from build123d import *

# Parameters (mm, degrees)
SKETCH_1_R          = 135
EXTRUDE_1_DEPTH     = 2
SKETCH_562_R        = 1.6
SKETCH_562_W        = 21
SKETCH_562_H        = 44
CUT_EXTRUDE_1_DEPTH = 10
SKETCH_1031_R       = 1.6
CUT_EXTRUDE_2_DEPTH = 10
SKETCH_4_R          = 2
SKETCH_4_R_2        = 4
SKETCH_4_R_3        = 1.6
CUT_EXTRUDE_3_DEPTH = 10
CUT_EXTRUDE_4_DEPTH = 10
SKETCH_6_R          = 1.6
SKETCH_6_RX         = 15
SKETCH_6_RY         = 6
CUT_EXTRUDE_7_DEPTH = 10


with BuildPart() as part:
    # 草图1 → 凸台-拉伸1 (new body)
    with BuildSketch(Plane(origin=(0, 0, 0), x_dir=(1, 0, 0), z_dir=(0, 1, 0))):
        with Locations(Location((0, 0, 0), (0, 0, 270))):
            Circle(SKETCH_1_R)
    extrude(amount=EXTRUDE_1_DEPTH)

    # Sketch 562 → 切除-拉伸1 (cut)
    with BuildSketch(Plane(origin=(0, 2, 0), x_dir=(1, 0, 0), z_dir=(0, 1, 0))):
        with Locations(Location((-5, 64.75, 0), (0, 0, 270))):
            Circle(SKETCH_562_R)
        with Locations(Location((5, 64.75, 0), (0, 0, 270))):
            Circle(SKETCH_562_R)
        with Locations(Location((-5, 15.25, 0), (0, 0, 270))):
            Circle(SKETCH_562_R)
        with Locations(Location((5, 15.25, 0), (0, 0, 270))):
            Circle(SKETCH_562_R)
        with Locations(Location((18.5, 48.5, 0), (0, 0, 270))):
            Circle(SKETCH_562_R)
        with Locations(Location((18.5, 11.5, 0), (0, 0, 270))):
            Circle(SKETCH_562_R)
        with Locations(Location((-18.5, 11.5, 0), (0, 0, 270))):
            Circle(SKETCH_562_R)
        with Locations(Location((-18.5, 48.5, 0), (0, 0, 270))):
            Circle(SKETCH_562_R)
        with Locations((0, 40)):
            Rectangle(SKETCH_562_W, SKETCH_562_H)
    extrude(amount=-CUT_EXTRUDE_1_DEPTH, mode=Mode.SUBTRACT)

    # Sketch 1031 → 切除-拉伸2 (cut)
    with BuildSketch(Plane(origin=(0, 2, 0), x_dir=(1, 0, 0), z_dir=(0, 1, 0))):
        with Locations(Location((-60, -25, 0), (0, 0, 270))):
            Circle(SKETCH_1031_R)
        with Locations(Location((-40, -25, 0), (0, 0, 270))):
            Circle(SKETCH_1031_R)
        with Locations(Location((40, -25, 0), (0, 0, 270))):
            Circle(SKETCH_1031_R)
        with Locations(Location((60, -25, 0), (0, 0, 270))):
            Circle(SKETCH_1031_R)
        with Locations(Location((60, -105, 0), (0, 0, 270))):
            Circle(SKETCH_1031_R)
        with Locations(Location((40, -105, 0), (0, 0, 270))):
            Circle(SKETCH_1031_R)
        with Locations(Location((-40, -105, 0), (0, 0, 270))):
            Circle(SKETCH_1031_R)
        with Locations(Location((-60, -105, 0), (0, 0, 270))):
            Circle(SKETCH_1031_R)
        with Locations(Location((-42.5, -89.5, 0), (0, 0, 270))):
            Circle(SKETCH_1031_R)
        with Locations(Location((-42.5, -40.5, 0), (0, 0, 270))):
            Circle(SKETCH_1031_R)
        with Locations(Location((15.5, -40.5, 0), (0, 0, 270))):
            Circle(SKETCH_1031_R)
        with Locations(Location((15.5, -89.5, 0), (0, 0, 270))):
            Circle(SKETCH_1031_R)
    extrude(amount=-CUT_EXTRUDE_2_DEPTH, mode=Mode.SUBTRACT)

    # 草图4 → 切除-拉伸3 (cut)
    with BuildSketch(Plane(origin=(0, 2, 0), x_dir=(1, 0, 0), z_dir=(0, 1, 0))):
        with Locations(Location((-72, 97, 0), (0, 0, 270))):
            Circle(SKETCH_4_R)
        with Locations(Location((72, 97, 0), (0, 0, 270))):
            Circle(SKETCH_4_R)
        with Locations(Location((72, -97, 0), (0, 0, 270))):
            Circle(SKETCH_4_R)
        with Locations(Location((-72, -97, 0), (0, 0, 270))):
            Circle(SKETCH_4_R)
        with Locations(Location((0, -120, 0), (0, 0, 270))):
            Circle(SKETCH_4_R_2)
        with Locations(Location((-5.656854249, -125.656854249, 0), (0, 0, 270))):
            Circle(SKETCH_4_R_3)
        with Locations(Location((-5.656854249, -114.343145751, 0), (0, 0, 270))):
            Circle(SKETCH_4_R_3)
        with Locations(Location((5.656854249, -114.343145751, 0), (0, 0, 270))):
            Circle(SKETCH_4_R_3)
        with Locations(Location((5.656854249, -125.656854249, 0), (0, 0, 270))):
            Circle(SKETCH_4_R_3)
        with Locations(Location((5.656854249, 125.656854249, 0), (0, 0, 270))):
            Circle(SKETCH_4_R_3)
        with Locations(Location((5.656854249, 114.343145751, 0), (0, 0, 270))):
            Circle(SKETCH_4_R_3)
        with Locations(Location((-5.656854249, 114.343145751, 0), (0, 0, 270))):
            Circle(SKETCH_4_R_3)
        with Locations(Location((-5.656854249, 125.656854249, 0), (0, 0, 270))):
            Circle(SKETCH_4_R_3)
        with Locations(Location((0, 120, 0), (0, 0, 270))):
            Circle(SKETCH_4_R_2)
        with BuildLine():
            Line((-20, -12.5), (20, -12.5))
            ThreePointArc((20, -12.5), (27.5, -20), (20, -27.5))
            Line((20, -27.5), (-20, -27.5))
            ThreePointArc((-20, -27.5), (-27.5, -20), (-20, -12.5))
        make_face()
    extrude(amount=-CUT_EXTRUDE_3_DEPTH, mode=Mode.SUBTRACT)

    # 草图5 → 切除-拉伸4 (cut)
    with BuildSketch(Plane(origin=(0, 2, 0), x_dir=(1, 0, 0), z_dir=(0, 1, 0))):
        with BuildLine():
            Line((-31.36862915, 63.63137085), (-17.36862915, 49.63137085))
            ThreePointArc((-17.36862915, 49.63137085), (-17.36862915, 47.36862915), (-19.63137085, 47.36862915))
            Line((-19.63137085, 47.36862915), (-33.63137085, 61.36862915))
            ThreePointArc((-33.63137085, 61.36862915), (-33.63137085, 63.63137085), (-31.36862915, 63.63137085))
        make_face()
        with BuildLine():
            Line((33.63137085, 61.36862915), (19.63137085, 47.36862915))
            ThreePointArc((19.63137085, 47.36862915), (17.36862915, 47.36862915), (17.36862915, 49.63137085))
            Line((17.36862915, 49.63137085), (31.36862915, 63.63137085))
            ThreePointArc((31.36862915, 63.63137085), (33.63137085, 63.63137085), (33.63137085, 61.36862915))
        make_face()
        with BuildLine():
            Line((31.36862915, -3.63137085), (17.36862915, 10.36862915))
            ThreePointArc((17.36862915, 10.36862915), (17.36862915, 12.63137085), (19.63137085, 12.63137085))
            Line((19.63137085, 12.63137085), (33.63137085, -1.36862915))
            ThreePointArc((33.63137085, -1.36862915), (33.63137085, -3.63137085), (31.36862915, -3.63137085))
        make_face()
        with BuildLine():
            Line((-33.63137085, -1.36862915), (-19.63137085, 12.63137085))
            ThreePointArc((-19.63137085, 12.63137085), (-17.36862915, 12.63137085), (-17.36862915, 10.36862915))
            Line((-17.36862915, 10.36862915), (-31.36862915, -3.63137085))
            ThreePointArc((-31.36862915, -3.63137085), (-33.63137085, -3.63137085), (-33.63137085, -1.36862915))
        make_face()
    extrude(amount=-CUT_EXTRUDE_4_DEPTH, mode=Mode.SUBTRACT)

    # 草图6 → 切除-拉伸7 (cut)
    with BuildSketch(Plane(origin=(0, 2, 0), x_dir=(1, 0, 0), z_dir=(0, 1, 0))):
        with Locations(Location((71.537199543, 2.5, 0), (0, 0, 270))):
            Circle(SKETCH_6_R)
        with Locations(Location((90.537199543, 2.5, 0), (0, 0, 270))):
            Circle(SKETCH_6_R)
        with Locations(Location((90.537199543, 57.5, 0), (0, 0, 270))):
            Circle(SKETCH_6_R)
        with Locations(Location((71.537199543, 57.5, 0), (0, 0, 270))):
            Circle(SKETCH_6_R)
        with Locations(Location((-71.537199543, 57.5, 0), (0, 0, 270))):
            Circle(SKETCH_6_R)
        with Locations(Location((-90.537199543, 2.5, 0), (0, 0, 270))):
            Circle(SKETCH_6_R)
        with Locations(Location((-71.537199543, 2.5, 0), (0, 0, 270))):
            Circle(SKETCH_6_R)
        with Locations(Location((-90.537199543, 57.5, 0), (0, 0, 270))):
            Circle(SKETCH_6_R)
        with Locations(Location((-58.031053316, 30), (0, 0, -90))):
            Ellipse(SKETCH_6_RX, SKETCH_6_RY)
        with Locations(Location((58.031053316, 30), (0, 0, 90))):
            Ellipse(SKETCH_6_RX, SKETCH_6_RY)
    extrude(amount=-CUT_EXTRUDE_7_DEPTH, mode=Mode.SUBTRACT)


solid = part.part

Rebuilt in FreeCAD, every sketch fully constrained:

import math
import FreeCAD as App
import Part
import Sketcher
from FreeCAD import Vector

doc = App.newDocument("Part")
params = doc.addObject("Spreadsheet::Sheet", "Params")
for row, (alias, value) in enumerate([
    ("sketch1_diameter", "270 mm"),
    ("pad1_length", "2 mm"),
    ("sketch2_diameter", "3.2 mm"),
    ("sketch2_width", "21 mm"),
    ("sketch2_height", "44 mm"),
    ("pocket1_length", "10 mm"),
    ("sketch3_diameter", "3.2 mm"),
    ("pocket2_length", "10 mm"),
    ("sketch4_diameter", "4 mm"),
    ("sketch4_diameter2", "8 mm"),
    ("sketch4_diameter3", "3.2 mm"),
    ("sketch4_radius", "7.5 mm"),
    ("sketch4_width", "40 mm"),
    ("pocket3_length", "10 mm"),
    ("sketch5_radius", "1.6 mm"),
    ("pocket4_length", "10 mm"),
    ("sketch6_diameter", "3.2 mm"),
    ("pocket5_length", "10 mm"),
], start=1):
    params.set(f"A{row}", alias)
    params.set(f"B{row}", "=" + value)
    params.setAlias(f"B{row}", alias)

body = doc.addObject("PartDesign::Body", "Body")

# Sketch on XZ plane
sketch1 = body.newObject("Sketcher::SketchObject", "Sketch")
sketch1.AttachmentSupport = (doc.getObject("XZ_Plane"), [""])
sketch1.MapMode = "FlatFace"
sketch1.addGeometry(Part.Circle(Vector(0, 0, 0), Vector(0, 0, 1), 135), False)
sketch1.addConstraint([
    Sketcher.Constraint("Coincident", 0, 3, -1, 1),
    Sketcher.Constraint("Diameter", 0, 270.0),
])
sketch1.setExpression("Constraints[1]", "Params.sketch1_diameter")
pad1 = body.newObject("PartDesign::Pad", "Pad")
pad1.Profile = sketch1
pad1.setExpression("Length", "Params.pad1_length")
pad1.Reversed = True

# Sketch on XZ plane
sketch2 = body.newObject("Sketcher::SketchObject", "Sketch001")
sketch2.AttachmentSupport = (doc.getObject("XZ_Plane"), [""])
sketch2.MapMode = "FlatFace"
sketch2.AttachmentOffset = App.Placement(Vector(0, 0, -2), App.Rotation())
sketch2.addGeometry([
    Part.Circle(Vector(-5, -64.75, 0), Vector(0, 0, 1), 1.6),  # 0
    Part.Circle(Vector(5, -64.75, 0), Vector(0, 0, 1), 1.6),  # 1
    Part.Circle(Vector(-5, -15.25, 0), Vector(0, 0, 1), 1.6),  # 2
    Part.Circle(Vector(5, -15.25, 0), Vector(0, 0, 1), 1.6),  # 3
    Part.Circle(Vector(18.5, -48.5, 0), Vector(0, 0, 1), 1.6),  # 4
    Part.Circle(Vector(18.5, -11.5, 0), Vector(0, 0, 1), 1.6),  # 5
    Part.Circle(Vector(-18.5, -11.5, 0), Vector(0, 0, 1), 1.6),  # 6
    Part.Circle(Vector(-18.5, -48.5, 0), Vector(0, 0, 1), 1.6),  # 7
    Part.LineSegment(Vector(-10.5, -62, 0), Vector(-10.5, -18, 0)),  # 8
    Part.LineSegment(Vector(-10.5, -18, 0), Vector(10.5, -18, 0)),  # 9
    Part.LineSegment(Vector(10.5, -18, 0), Vector(10.5, -62, 0)),  # 10
    Part.LineSegment(Vector(10.5, -62, 0), Vector(-10.5, -62, 0)),  # 11
], False)
sketch2.addConstraint([
    Sketcher.Constraint("Coincident", 8, 2, 9, 1),
    Sketcher.Constraint("Coincident", 9, 2, 10, 1),
    Sketcher.Constraint("Coincident", 10, 2, 11, 1),
    Sketcher.Constraint("Coincident", 11, 2, 8, 1),
    Sketcher.Constraint("Vertical", 8),
    Sketcher.Constraint("Horizontal", 9),
    Sketcher.Constraint("Vertical", 10),
    Sketcher.Constraint("Horizontal", 11),
    Sketcher.Constraint("Equal", 0, 1),
    Sketcher.Constraint("Equal", 1, 2),
    Sketcher.Constraint("Equal", 2, 3),
    Sketcher.Constraint("Equal", 3, 4),
    Sketcher.Constraint("Equal", 4, 5),
    Sketcher.Constraint("Equal", 5, 6),
    Sketcher.Constraint("Equal", 6, 7),
    Sketcher.Constraint("Symmetric", 0, 3, 1, 3, -2),
    Sketcher.Constraint("Symmetric", 2, 3, 3, 3, -2),
    Sketcher.Constraint("Symmetric", 5, 3, 6, 3, -2),
    Sketcher.Constraint("Symmetric", 4, 3, 7, 3, -2),
    Sketcher.Constraint("Vertical", 0, 3, 2, 3),
    Sketcher.Constraint("Vertical", 4, 3, 5, 3),
    Sketcher.Constraint("Diameter", 0, 3.2),
    Sketcher.Constraint("DistanceX", 9, 1, 9, 2, 21.0),
    Sketcher.Constraint("DistanceY", 8, 1, 8, 2, 44.0),
    Sketcher.Constraint("DistanceX", 0, 3, -1, 1, 5.0),
    Sketcher.Constraint("DistanceY", 8, 2, -1, 1, 18.0),
    Sketcher.Constraint("DistanceY", 4, 3, 5, 3, 37.0),
    Sketcher.Constraint("DistanceX", 6, 3, 5, 3, 37.0),
    Sketcher.Constraint("DistanceX", 6, 3, 8, 2, 8.0),
    Sketcher.Constraint("DistanceY", 4, 3, -1, 1, 48.5),
    Sketcher.Constraint("DistanceY", 0, 3, 2, 3, 49.5),
    Sketcher.Constraint("DistanceY", 0, 3, -1, 1, 64.75),
])
sketch2.setExpression("Constraints[21]", "Params.sketch2_diameter")
sketch2.setExpression("Constraints[22]", "Params.sketch2_width")
sketch2.setExpression("Constraints[23]", "Params.sketch2_height")
pocket1 = body.newObject("PartDesign::Pocket", "Pocket")
pocket1.Profile = sketch2
pocket1.setExpression("Length", "Params.pocket1_length")
pocket1.Reversed = True

# Sketch on XZ plane
sketch3 = body.newObject("Sketcher::SketchObject", "Sketch002")
sketch3.AttachmentSupport = (doc.getObject("XZ_Plane"), [""])
sketch3.MapMode = "FlatFace"
sketch3.AttachmentOffset = App.Placement(Vector(0, 0, -2), App.Rotation())
sketch3.addGeometry([
    Part.Circle(Vector(-60, 25, 0), Vector(0, 0, 1), 1.6),  # 0
    Part.Circle(Vector(-40, 25, 0), Vector(0, 0, 1), 1.6),  # 1
    Part.Circle(Vector(40, 25, 0), Vector(0, 0, 1), 1.6),  # 2
    Part.Circle(Vector(60, 25, 0), Vector(0, 0, 1), 1.6),  # 3
    Part.Circle(Vector(60, 105, 0), Vector(0, 0, 1), 1.6),  # 4
    Part.Circle(Vector(40, 105, 0), Vector(0, 0, 1), 1.6),  # 5
    Part.Circle(Vector(-40, 105, 0), Vector(0, 0, 1), 1.6),  # 6
    Part.Circle(Vector(-60, 105, 0), Vector(0, 0, 1), 1.6),  # 7
    Part.Circle(Vector(-42.5, 89.5, 0), Vector(0, 0, 1), 1.6),  # 8
    Part.Circle(Vector(-42.5, 40.5, 0), Vector(0, 0, 1), 1.6),  # 9
    Part.Circle(Vector(15.5, 40.5, 0), Vector(0, 0, 1), 1.6),  # 10
    Part.Circle(Vector(15.5, 89.5, 0), Vector(0, 0, 1), 1.6),  # 11
], False)
sketch3.addConstraint([
    Sketcher.Constraint("Equal", 0, 1),
    Sketcher.Constraint("Equal", 1, 2),
    Sketcher.Constraint("Equal", 2, 3),
    Sketcher.Constraint("Equal", 3, 4),
    Sketcher.Constraint("Equal", 4, 5),
    Sketcher.Constraint("Equal", 5, 6),
    Sketcher.Constraint("Equal", 6, 7),
    Sketcher.Constraint("Equal", 7, 8),
    Sketcher.Constraint("Equal", 8, 9),
    Sketcher.Constraint("Equal", 9, 10),
    Sketcher.Constraint("Equal", 10, 11),
    Sketcher.Constraint("Symmetric", 1, 3, 2, 3, -2),
    Sketcher.Constraint("Symmetric", 0, 3, 3, 3, -2),
    Sketcher.Constraint("Symmetric", 5, 3, 6, 3, -2),
    Sketcher.Constraint("Symmetric", 4, 3, 7, 3, -2),
    Sketcher.Constraint("Horizontal", 0, 3, 1, 3),
    Sketcher.Constraint("Horizontal", 4, 3, 5, 3),
    Sketcher.Constraint("Horizontal", 9, 3, 10, 3),
    Sketcher.Constraint("Horizontal", 8, 3, 11, 3),
    Sketcher.Constraint("Vertical", 3, 3, 4, 3),
    Sketcher.Constraint("Vertical", 2, 3, 5, 3),
    Sketcher.Constraint("Vertical", 8, 3, 9, 3),
    Sketcher.Constraint("Vertical", 10, 3, 11, 3),
    Sketcher.Constraint("Diameter", 0, 3.2),
    Sketcher.Constraint("DistanceX", 0, 3, -1, 1, 60.0),
    Sketcher.Constraint("DistanceY", -1, 1, 0, 3, 25.0),
    Sketcher.Constraint("DistanceX", 1, 3, -1, 1, 40.0),
    Sketcher.Constraint("DistanceY", -1, 1, 4, 3, 105.0),
    Sketcher.Constraint("DistanceY", 9, 3, 8, 3, 49.0),
    Sketcher.Constraint("DistanceX", 9, 3, 10, 3, 58.0),
    Sketcher.Constraint("DistanceX", 8, 3, -1, 1, 42.5),
    Sketcher.Constraint("DistanceY", -1, 1, 8, 3, 89.5),
])
sketch3.setExpression("Constraints[23]", "Params.sketch3_diameter")
pocket2 = body.newObject("PartDesign::Pocket", "Pocket001")
pocket2.Profile = sketch3
pocket2.setExpression("Length", "Params.pocket2_length")
pocket2.Reversed = True

# Sketch on XZ plane
sketch4 = body.newObject("Sketcher::SketchObject", "Sketch003")
sketch4.AttachmentSupport = (doc.getObject("XZ_Plane"), [""])
sketch4.MapMode = "FlatFace"
sketch4.AttachmentOffset = App.Placement(Vector(0, 0, -2), App.Rotation())
sketch4.addGeometry([
    Part.Circle(Vector(-72, -97, 0), Vector(0, 0, 1), 2),  # 0
    Part.Circle(Vector(72, -97, 0), Vector(0, 0, 1), 2),  # 1
    Part.Circle(Vector(72, 97, 0), Vector(0, 0, 1), 2),  # 2
    Part.Circle(Vector(-72, 97, 0), Vector(0, 0, 1), 2),  # 3
    Part.Circle(Vector(0, 120, 0), Vector(0, 0, 1), 4),  # 4
    Part.Circle(Vector(-5.656854, 125.656854, 0), Vector(0, 0, 1), 1.6),  # 5
    Part.Circle(Vector(-5.656854, 114.343146, 0), Vector(0, 0, 1), 1.6),  # 6
    Part.Circle(Vector(5.656854, 114.343146, 0), Vector(0, 0, 1), 1.6),  # 7
    Part.Circle(Vector(5.656854, 125.656854, 0), Vector(0, 0, 1), 1.6),  # 8
    Part.Circle(Vector(5.656854, -125.656854, 0), Vector(0, 0, 1), 1.6),  # 9
    Part.Circle(Vector(5.656854, -114.343146, 0), Vector(0, 0, 1), 1.6),  # 10
    Part.Circle(Vector(-5.656854, -114.343146, 0), Vector(0, 0, 1), 1.6),  # 11
    Part.Circle(Vector(-5.656854, -125.656854, 0), Vector(0, 0, 1), 1.6),  # 12
    Part.Circle(Vector(0, -120, 0), Vector(0, 0, 1), 4),  # 13
    Part.LineSegment(Vector(20, 12.5, 0), Vector(-20, 12.5, 0)),  # 14
    Part.ArcOfCircle(Part.Circle(Vector(-20, 20, 0), Vector(0, 0, 1), 7.5), math.radians(90), math.radians(270)),  # 15
    Part.LineSegment(Vector(-20, 27.5, 0), Vector(20, 27.5, 0)),  # 16
    Part.ArcOfCircle(Part.Circle(Vector(20, 20, 0), Vector(0, 0, 1), 7.5), math.radians(-90), math.radians(90)),  # 17
], False)
sketch4.addConstraint([
    Sketcher.Constraint("Tangent", 14, 2, 15, 2),
    Sketcher.Constraint("Tangent", 15, 1, 16, 1),
    Sketcher.Constraint("Tangent", 16, 2, 17, 2),
    Sketcher.Constraint("Tangent", 17, 1, 14, 1),
    Sketcher.Constraint("Horizontal", 14),
    Sketcher.Constraint("Horizontal", 16),
    Sketcher.Constraint("Equal", 0, 1),
    Sketcher.Constraint("Equal", 1, 2),
    Sketcher.Constraint("Equal", 2, 3),
    Sketcher.Constraint("Equal", 5, 6),
    Sketcher.Constraint("Equal", 6, 7),
    Sketcher.Constraint("Equal", 7, 8),
    Sketcher.Constraint("Equal", 8, 9),
    Sketcher.Constraint("Equal", 9, 10),
    Sketcher.Constraint("Equal", 10, 11),
    Sketcher.Constraint("Equal", 11, 12),
    Sketcher.Constraint("Equal", 4, 13),
    Sketcher.Constraint("Symmetric", 0, 3, 2, 3, -1, 1),
    Sketcher.Constraint("Symmetric", 1, 3, 3, 3, -1, 1),
    Sketcher.Constraint("Symmetric", 5, 3, 9, 3, -1, 1),
    Sketcher.Constraint("Symmetric", 6, 3, 10, 3, -1, 1),
    Sketcher.Constraint("Symmetric", 7, 3, 11, 3, -1, 1),
    Sketcher.Constraint("Symmetric", 8, 3, 12, 3, -1, 1),
    Sketcher.Constraint("Symmetric", 4, 3, 13, 3, -1, 1),
    Sketcher.Constraint("Symmetric", 0, 3, 1, 3, -2),
    Sketcher.Constraint("Symmetric", 6, 3, 7, 3, -2),
    Sketcher.Constraint("Symmetric", 5, 3, 8, 3, -2),
    Sketcher.Constraint("PointOnObject", 4, 3, -2),
    Sketcher.Constraint("Vertical", 5, 3, 6, 3),
    Sketcher.Constraint("Diameter", 0, 4.0),
    Sketcher.Constraint("Diameter", 4, 8.0),
    Sketcher.Constraint("Diameter", 5, 3.2),
    Sketcher.Constraint("Radius", 15, 7.5),
    Sketcher.Constraint("DistanceX", 14, 2, 14, 1, 40.0),
    Sketcher.Constraint("DistanceX", 0, 3, -1, 1, 72.0),
    Sketcher.Constraint("DistanceY", 0, 3, -1, 1, 97.0),
    Sketcher.Constraint("DistanceY", -1, 1, 4, 3, 120.0),
    Sketcher.Constraint("DistanceX", 15, 3, -1, 1, 20.0),
    Sketcher.Constraint("DistanceY", -1, 1, 15, 3, 20.0),
    Sketcher.Constraint("DistanceY", 9, 3, 7, 3, 240.0),
    Sketcher.Constraint("DistanceY", 6, 3, 5, 3, 11.313708),
    Sketcher.Constraint("DistanceX", 6, 3, 7, 3, 11.313708),
])
sketch4.setExpression("Constraints[29]", "Params.sketch4_diameter")
sketch4.setExpression("Constraints[30]", "Params.sketch4_diameter2")
sketch4.setExpression("Constraints[31]", "Params.sketch4_diameter3")
sketch4.setExpression("Constraints[32]", "Params.sketch4_radius")
sketch4.setExpression("Constraints[33]", "Params.sketch4_width")
pocket3 = body.newObject("PartDesign::Pocket", "Pocket002")
pocket3.Profile = sketch4
pocket3.setExpression("Length", "Params.pocket3_length")
pocket3.Reversed = True

# Sketch on XZ plane
sketch5 = body.newObject("Sketcher::SketchObject", "Sketch004")
sketch5.AttachmentSupport = (doc.getObject("XZ_Plane"), [""])
sketch5.MapMode = "FlatFace"
sketch5.AttachmentOffset = App.Placement(Vector(0, 0, -2), App.Rotation())
sketch5.addGeometry([
    Part.LineSegment(Vector(-17.368629, -49.631371, 0), Vector(-31.368629, -63.631371, 0)),  # 0
    Part.ArcOfCircle(Part.Circle(Vector(-32.5, -62.5, 0), Vector(0, 0, 1), 1.6), math.radians(135), math.radians(315)),  # 1
    Part.LineSegment(Vector(-33.631371, -61.368629, 0), Vector(-19.631371, -47.368629, 0)),  # 2
    Part.ArcOfCircle(Part.Circle(Vector(-18.5, -48.5, 0), Vector(0, 0, 1), 1.6), math.radians(-45), math.radians(135)),  # 3
    Part.LineSegment(Vector(19.631371, -47.368629, 0), Vector(33.631371, -61.368629, 0)),  # 4
    Part.ArcOfCircle(Part.Circle(Vector(32.5, -62.5, 0), Vector(0, 0, 1), 1.6), math.radians(-135), math.radians(45)),  # 5
    Part.LineSegment(Vector(31.368629, -63.631371, 0), Vector(17.368629, -49.631371, 0)),  # 6
    Part.ArcOfCircle(Part.Circle(Vector(18.5, -48.5, 0), Vector(0, 0, 1), 1.6), math.radians(45), math.radians(225)),  # 7
    Part.LineSegment(Vector(17.368629, -10.368629, 0), Vector(31.368629, 3.631371, 0)),  # 8
    Part.ArcOfCircle(Part.Circle(Vector(32.5, 2.5, 0), Vector(0, 0, 1), 1.6), math.radians(-45), math.radians(135)),  # 9
    Part.LineSegment(Vector(33.631371, 1.368629, 0), Vector(19.631371, -12.631371, 0)),  # 10
    Part.ArcOfCircle(Part.Circle(Vector(18.5, -11.5, 0), Vector(0, 0, 1), 1.6), math.radians(135), math.radians(315)),  # 11
    Part.LineSegment(Vector(-19.631371, -12.631371, 0), Vector(-33.631371, 1.368629, 0)),  # 12
    Part.ArcOfCircle(Part.Circle(Vector(-32.5, 2.5, 0), Vector(0, 0, 1), 1.6), math.radians(45), math.radians(225)),  # 13
    Part.LineSegment(Vector(-31.368629, 3.631371, 0), Vector(-17.368629, -10.368629, 0)),  # 14
    Part.ArcOfCircle(Part.Circle(Vector(-18.5, -11.5, 0), Vector(0, 0, 1), 1.6), math.radians(-135), math.radians(45)),  # 15
], False)
sketch5.addConstraint([
    Sketcher.Constraint("Tangent", 0, 2, 1, 2),
    Sketcher.Constraint("Tangent", 1, 1, 2, 1),
    Sketcher.Constraint("Tangent", 2, 2, 3, 2),
    Sketcher.Constraint("Tangent", 3, 1, 0, 1),
    Sketcher.Constraint("Tangent", 4, 2, 5, 2),
    Sketcher.Constraint("Tangent", 5, 1, 6, 1),
    Sketcher.Constraint("Tangent", 6, 2, 7, 2),
    Sketcher.Constraint("Tangent", 7, 1, 4, 1),
    Sketcher.Constraint("Tangent", 8, 2, 9, 2),
    Sketcher.Constraint("Tangent", 9, 1, 10, 1),
    Sketcher.Constraint("Tangent", 10, 2, 11, 2),
    Sketcher.Constraint("Tangent", 11, 1, 8, 1),
    Sketcher.Constraint("Tangent", 12, 2, 13, 2),
    Sketcher.Constraint("Tangent", 13, 1, 14, 1),
    Sketcher.Constraint("Tangent", 14, 2, 15, 2),
    Sketcher.Constraint("Tangent", 15, 1, 12, 1),
    Sketcher.Constraint("Equal", 1, 3),
    Sketcher.Constraint("Equal", 3, 5),
    Sketcher.Constraint("Equal", 5, 7),
    Sketcher.Constraint("Equal", 7, 9),
    Sketcher.Constraint("Equal", 9, 11),
    Sketcher.Constraint("Equal", 11, 13),
    Sketcher.Constraint("Equal", 13, 15),
    Sketcher.Constraint("Symmetric", 1, 3, 5, 3, -2),
    Sketcher.Constraint("Symmetric", 3, 3, 7, 3, -2),
    Sketcher.Constraint("Symmetric", 9, 3, 13, 3, -2),
    Sketcher.Constraint("Symmetric", 11, 3, 15, 3, -2),
    Sketcher.Constraint("Perpendicular", 2, 4),
    Sketcher.Constraint("Perpendicular", 6, 8),
    Sketcher.Constraint("Vertical", 5, 3, 9, 3),
    Sketcher.Constraint("Vertical", 7, 3, 11, 3),
    Sketcher.Constraint("Radius", 1, 1.6),
    Sketcher.Constraint("DistanceX", 1, 3, 3, 3, 14.0),
    Sketcher.Constraint("DistanceX", 3, 3, 5, 3, 51.0),
    Sketcher.Constraint("DistanceY", 7, 3, 9, 3, 51.0),
    Sketcher.Constraint("DistanceY", 1, 3, -1, 1, 62.5),
])
sketch5.setExpression("Constraints[31]", "Params.sketch5_radius")
pocket4 = body.newObject("PartDesign::Pocket", "Pocket003")
pocket4.Profile = sketch5
pocket4.setExpression("Length", "Params.pocket4_length")
pocket4.Reversed = True

# Sketch on XZ plane
sketch6 = body.newObject("Sketcher::SketchObject", "Sketch005")
sketch6.AttachmentSupport = (doc.getObject("XZ_Plane"), [""])
sketch6.MapMode = "FlatFace"
sketch6.AttachmentOffset = App.Placement(Vector(0, 0, -2), App.Rotation())
sketch6.addGeometry([
    Part.Circle(Vector(71.5372, -2.5, 0), Vector(0, 0, 1), 1.6),  # 0
    Part.Circle(Vector(90.5372, -2.5, 0), Vector(0, 0, 1), 1.6),  # 1
    Part.Circle(Vector(90.5372, -57.5, 0), Vector(0, 0, 1), 1.6),  # 2
    Part.Circle(Vector(71.5372, -57.5, 0), Vector(0, 0, 1), 1.6),  # 3
    Part.Circle(Vector(-71.5372, -57.5, 0), Vector(0, 0, 1), 1.6),  # 4
    Part.Circle(Vector(-90.5372, -2.5, 0), Vector(0, 0, 1), 1.6),  # 5
    Part.Circle(Vector(-71.5372, -2.5, 0), Vector(0, 0, 1), 1.6),  # 6
    Part.Circle(Vector(-90.5372, -57.5, 0), Vector(0, 0, 1), 1.6),  # 7
    Part.Ellipse(Vector(-58.031053, -15, 0), Vector(-64.031053, -30, 0), Vector(-58.031053, -30, 0)),  # 8
    Part.Ellipse(Vector(58.031053, -45, 0), Vector(64.031053, -30, 0), Vector(58.031053, -30, 0)),  # 9
], False)
sketch6.addConstraint([
    Sketcher.Constraint("Block", 8),
    Sketcher.Constraint("Block", 9),
    Sketcher.Constraint("Equal", 0, 1),
    Sketcher.Constraint("Equal", 1, 2),
    Sketcher.Constraint("Equal", 2, 3),
    Sketcher.Constraint("Equal", 3, 4),
    Sketcher.Constraint("Equal", 4, 5),
    Sketcher.Constraint("Equal", 5, 6),
    Sketcher.Constraint("Equal", 6, 7),
    Sketcher.Constraint("Symmetric", 3, 3, 4, 3, -2),
    Sketcher.Constraint("Symmetric", 1, 3, 5, 3, -2),
    Sketcher.Constraint("Symmetric", 0, 3, 6, 3, -2),
    Sketcher.Constraint("Symmetric", 2, 3, 7, 3, -2),
    Sketcher.Constraint("Horizontal", 0, 3, 1, 3),
    Sketcher.Constraint("Horizontal", 2, 3, 3, 3),
    Sketcher.Constraint("Vertical", 1, 3, 2, 3),
    Sketcher.Constraint("Vertical", 0, 3, 3, 3),
    Sketcher.Constraint("Diameter", 0, 3.2),
    Sketcher.Constraint("DistanceX", 0, 3, 1, 3, 19.0),
    Sketcher.Constraint("DistanceY", 2, 3, 1, 3, 55.0),
    Sketcher.Constraint("DistanceY", 0, 3, -1, 1, 2.5),
    Sketcher.Constraint("DistanceX", -1, 1, 0, 3, 71.5372),
])
sketch6.setExpression("Constraints[17]", "Params.sketch6_diameter")
pocket5 = body.newObject("PartDesign::Pocket", "Pocket004")
pocket5.Profile = sketch6
pocket5.setExpression("Length", "Params.pocket5_length")
pocket5.Reversed = True

doc.recompute()
